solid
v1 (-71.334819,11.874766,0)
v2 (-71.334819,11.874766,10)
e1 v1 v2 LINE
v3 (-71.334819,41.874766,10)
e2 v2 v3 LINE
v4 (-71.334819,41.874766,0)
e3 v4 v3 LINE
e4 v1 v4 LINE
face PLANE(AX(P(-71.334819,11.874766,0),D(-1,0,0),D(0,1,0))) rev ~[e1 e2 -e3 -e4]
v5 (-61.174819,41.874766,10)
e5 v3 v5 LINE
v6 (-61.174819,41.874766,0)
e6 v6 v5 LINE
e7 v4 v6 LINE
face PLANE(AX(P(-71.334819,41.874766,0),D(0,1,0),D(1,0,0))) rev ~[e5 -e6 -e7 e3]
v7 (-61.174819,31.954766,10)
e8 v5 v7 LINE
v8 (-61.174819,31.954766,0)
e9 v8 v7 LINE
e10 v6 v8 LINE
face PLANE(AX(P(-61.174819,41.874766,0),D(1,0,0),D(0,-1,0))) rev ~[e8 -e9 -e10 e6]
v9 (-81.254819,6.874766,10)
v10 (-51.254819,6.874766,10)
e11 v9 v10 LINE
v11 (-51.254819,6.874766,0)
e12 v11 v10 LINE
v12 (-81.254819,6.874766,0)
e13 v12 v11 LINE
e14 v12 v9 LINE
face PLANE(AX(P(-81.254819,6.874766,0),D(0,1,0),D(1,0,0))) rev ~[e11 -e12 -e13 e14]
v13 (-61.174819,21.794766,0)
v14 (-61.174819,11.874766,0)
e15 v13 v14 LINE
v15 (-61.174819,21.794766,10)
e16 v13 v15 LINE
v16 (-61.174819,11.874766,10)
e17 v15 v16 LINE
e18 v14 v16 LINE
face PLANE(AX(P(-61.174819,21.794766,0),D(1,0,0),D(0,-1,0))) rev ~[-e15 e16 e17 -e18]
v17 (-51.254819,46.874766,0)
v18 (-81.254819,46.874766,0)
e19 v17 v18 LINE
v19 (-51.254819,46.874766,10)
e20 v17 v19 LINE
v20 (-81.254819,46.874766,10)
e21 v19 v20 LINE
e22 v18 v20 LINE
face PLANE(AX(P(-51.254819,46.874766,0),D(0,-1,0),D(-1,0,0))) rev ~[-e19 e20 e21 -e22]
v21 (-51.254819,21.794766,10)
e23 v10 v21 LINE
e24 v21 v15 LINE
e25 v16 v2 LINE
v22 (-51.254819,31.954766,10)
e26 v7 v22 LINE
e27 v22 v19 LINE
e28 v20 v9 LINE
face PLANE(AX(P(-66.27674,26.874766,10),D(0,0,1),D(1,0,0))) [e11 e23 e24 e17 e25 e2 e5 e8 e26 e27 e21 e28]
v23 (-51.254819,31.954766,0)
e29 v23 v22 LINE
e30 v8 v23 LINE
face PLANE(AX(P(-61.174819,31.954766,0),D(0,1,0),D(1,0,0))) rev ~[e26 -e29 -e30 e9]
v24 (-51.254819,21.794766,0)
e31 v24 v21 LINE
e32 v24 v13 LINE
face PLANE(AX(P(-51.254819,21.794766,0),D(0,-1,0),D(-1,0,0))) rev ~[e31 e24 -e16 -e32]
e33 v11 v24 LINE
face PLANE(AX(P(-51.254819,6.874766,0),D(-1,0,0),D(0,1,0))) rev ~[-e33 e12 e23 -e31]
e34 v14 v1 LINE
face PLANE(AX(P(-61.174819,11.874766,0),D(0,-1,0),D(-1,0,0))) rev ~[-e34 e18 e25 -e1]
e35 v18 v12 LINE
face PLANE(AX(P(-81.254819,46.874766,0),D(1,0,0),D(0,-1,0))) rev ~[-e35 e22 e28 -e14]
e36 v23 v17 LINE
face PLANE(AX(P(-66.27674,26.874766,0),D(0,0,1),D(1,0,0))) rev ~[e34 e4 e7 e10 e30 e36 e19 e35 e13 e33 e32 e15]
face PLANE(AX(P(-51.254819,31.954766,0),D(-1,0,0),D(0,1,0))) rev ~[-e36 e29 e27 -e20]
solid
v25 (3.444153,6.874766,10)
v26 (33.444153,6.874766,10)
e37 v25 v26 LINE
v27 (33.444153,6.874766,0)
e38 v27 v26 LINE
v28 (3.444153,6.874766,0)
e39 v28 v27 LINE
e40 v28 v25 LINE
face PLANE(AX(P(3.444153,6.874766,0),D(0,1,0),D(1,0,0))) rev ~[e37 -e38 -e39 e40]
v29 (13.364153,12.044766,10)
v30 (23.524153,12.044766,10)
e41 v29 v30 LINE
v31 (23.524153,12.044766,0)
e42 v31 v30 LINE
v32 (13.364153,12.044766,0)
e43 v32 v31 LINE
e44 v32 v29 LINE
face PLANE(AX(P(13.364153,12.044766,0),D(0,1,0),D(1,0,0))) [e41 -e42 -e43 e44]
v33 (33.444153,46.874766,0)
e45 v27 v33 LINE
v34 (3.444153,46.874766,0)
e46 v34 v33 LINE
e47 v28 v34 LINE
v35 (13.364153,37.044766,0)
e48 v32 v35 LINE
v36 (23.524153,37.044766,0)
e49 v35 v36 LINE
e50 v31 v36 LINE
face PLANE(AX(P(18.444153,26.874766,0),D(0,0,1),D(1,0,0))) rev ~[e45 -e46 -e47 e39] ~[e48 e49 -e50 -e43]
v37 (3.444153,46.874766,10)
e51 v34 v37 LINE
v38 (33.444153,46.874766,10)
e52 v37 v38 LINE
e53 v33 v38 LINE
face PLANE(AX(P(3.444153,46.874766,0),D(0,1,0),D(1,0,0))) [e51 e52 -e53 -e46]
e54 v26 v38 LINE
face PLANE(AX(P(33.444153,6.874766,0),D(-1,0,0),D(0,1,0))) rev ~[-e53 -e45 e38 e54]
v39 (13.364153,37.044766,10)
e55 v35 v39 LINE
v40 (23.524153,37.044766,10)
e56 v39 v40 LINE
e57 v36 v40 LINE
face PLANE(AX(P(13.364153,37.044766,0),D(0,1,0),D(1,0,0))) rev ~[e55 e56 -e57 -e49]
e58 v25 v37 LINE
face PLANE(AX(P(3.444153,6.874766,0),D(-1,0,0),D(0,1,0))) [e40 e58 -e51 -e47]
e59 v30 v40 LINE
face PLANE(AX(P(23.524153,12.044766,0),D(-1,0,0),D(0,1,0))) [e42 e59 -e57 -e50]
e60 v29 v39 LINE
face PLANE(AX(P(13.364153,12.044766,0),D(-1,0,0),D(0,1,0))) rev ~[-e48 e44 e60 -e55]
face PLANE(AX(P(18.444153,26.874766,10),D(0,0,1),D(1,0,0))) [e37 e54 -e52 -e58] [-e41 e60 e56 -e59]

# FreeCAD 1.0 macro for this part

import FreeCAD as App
import Part
import Sketcher

V = App.Vector

doc = App.newDocument("Part")
body = doc.addObject("PartDesign::Body", "Body")
body.AllowCompound = True

sketch1 = body.newObject("Sketcher::SketchObject", "Sketch")
sketch1.AttachmentSupport = (doc.getObject("XY_Plane"), [""])
sketch1.MapMode = "FlatFace"
sketch1.addGeometry([
    Part.LineSegment(V(-51.254819, 31.954766, 0), V(-51.254819, 46.874766, 0)),
    Part.LineSegment(V(-51.254819, 46.874766, 0), V(-81.254819, 46.874766, 0)),
    Part.LineSegment(V(-81.254819, 46.874766, 0), V(-81.254819, 6.874766, 0)),
    Part.LineSegment(V(-81.254819, 6.874766, 0), V(-51.254819, 6.874766, 0)),
    Part.LineSegment(V(-51.254819, 6.874766, 0), V(-51.254819, 21.794766, 0)),
    Part.LineSegment(V(-51.254819, 21.794766, 0), V(-61.174819, 21.794766, 0)),
    Part.LineSegment(V(-61.174819, 21.794766, 0), V(-61.174819, 11.874766, 0)),
    Part.LineSegment(V(-61.174819, 11.874766, 0), V(-71.334819, 11.874766, 0)),
    Part.LineSegment(V(-71.334819, 11.874766, 0), V(-71.334819, 41.874766, 0)),
    Part.LineSegment(V(-71.334819, 41.874766, 0), V(-61.174819, 41.874766, 0)),
    Part.LineSegment(V(-61.174819, 41.874766, 0), V(-61.174819, 31.954766, 0)),
    Part.LineSegment(V(-61.174819, 31.954766, 0), V(-51.254819, 31.954766, 0)),
    Part.LineSegment(V(3.444153, 46.874766, 0), V(3.444153, 6.874766, 0)),
    Part.LineSegment(V(3.444153, 6.874766, 0), V(33.444153, 6.874766, 0)),
    Part.LineSegment(V(33.444153, 6.874766, 0), V(33.444153, 46.874766, 0)),
    Part.LineSegment(V(33.444153, 46.874766, 0), V(3.444153, 46.874766, 0)),
    Part.LineSegment(V(23.524153, 12.044766, 0), V(13.364153, 12.044766, 0)),
    Part.LineSegment(V(13.364153, 12.044766, 0), V(13.364153, 37.044766, 0)),
    Part.LineSegment(V(13.364153, 37.044766, 0), V(23.524153, 37.044766, 0)),
    Part.LineSegment(V(23.524153, 37.044766, 0), V(23.524153, 12.044766, 0)),
], False)
sketch1.addConstraint([
    Sketcher.Constraint("Coincident", 0, 2, 1, 1),
    Sketcher.Constraint("Coincident", 1, 2, 2, 1),
    Sketcher.Constraint("Coincident", 2, 2, 3, 1),
    Sketcher.Constraint("Coincident", 3, 2, 4, 1),
    Sketcher.Constraint("Coincident", 4, 2, 5, 1),
    Sketcher.Constraint("Coincident", 5, 2, 6, 1),
    Sketcher.Constraint("Coincident", 6, 2, 7, 1),
    Sketcher.Constraint("Coincident", 7, 2, 8, 1),
    Sketcher.Constraint("Coincident", 8, 2, 9, 1),
    Sketcher.Constraint("Coincident", 9, 2, 10, 1),
    Sketcher.Constraint("Coincident", 10, 2, 11, 1),
    Sketcher.Constraint("Coincident", 11, 2, 0, 1),
    Sketcher.Constraint("Coincident", 12, 2, 13, 1),
    Sketcher.Constraint("Coincident", 13, 2, 14, 1),
    Sketcher.Constraint("Coincident", 14, 2, 15, 1),
    Sketcher.Constraint("Coincident", 15, 2, 12, 1),
    Sketcher.Constraint("Coincident", 16, 2, 17, 1),
    Sketcher.Constraint("Coincident", 17, 2, 18, 1),
    Sketcher.Constraint("Coincident", 18, 2, 19, 1),
    Sketcher.Constraint("Coincident", 19, 2, 16, 1),
    Sketcher.Constraint("Vertical", 0),
    Sketcher.Constraint("Horizontal", 1),
    Sketcher.Constraint("Vertical", 2),
    Sketcher.Constraint("Horizontal", 3),
    Sketcher.Constraint("Vertical", 4),
    Sketcher.Constraint("Horizontal", 5),
    Sketcher.Constraint("Vertical", 6),
    Sketcher.Constraint("Horizontal", 7),
    Sketcher.Constraint("Vertical", 8),
    Sketcher.Constraint("Horizontal", 9),
    Sketcher.Constraint("Vertical", 10),
    Sketcher.Constraint("Horizontal", 11),
    Sketcher.Constraint("Vertical", 12),
    Sketcher.Constraint("Horizontal", 13),
    Sketcher.Constraint("Vertical", 14),
    Sketcher.Constraint("Horizontal", 15),
    Sketcher.Constraint("Horizontal", 16),
    Sketcher.Constraint("Vertical", 17),
    Sketcher.Constraint("Horizontal", 18),
    Sketcher.Constraint("Vertical", 19),
    Sketcher.Constraint("Horizontal", 3, 2, 12, 2),
    Sketcher.Constraint("Horizontal", 1, 2, 14, 2),
    Sketcher.Constraint("Vertical", 0, 2, 3, 2),
    Sketcher.Constraint("Vertical", 6, 2, 9, 2),
    Sketcher.Constraint("Equal", 3, 13),
    Sketcher.Constraint("Equal", 9, 16),
    Sketcher.Constraint("Equal", 0, 4),
    Sketcher.Constraint("Equal", 11, 6),
    Sketcher.Constraint("Equal", 15, 8),
    Sketcher.Constraint("Equal", 6, 10),
    Sketcher.Constraint("DistanceX", 1, 2, 1, 1, 30.0),
    Sketcher.Constraint("DistanceY", 2, 2, 2, 1, 40.0),
    Sketcher.Constraint("DistanceY", 17, 1, 17, 2, 25.0),
    Sketcher.Constraint("DistanceX", 5, 2, 5, 1, 9.92),
    Sketcher.Constraint("DistanceX", 7, 2, 7, 1, 10.16),
    Sketcher.Constraint("DistanceX", 12, 2, 16, 2, 9.92),
    Sketcher.Constraint("DistanceY", 12, 2, 16, 2, 5.17),
    Sketcher.Constraint("DistanceX", 0, 2, -1, 1, 51.254819),
    Sketcher.Constraint("DistanceX", 3, 2, 12, 2, 54.698972),
    Sketcher.Constraint("DistanceY", -1, 1, 0, 2, 46.874766),
])
pad1 = body.newObject("PartDesign::Pad", "Pad")
pad1.Profile = sketch1
pad1.Length = 10

doc.recompute()
